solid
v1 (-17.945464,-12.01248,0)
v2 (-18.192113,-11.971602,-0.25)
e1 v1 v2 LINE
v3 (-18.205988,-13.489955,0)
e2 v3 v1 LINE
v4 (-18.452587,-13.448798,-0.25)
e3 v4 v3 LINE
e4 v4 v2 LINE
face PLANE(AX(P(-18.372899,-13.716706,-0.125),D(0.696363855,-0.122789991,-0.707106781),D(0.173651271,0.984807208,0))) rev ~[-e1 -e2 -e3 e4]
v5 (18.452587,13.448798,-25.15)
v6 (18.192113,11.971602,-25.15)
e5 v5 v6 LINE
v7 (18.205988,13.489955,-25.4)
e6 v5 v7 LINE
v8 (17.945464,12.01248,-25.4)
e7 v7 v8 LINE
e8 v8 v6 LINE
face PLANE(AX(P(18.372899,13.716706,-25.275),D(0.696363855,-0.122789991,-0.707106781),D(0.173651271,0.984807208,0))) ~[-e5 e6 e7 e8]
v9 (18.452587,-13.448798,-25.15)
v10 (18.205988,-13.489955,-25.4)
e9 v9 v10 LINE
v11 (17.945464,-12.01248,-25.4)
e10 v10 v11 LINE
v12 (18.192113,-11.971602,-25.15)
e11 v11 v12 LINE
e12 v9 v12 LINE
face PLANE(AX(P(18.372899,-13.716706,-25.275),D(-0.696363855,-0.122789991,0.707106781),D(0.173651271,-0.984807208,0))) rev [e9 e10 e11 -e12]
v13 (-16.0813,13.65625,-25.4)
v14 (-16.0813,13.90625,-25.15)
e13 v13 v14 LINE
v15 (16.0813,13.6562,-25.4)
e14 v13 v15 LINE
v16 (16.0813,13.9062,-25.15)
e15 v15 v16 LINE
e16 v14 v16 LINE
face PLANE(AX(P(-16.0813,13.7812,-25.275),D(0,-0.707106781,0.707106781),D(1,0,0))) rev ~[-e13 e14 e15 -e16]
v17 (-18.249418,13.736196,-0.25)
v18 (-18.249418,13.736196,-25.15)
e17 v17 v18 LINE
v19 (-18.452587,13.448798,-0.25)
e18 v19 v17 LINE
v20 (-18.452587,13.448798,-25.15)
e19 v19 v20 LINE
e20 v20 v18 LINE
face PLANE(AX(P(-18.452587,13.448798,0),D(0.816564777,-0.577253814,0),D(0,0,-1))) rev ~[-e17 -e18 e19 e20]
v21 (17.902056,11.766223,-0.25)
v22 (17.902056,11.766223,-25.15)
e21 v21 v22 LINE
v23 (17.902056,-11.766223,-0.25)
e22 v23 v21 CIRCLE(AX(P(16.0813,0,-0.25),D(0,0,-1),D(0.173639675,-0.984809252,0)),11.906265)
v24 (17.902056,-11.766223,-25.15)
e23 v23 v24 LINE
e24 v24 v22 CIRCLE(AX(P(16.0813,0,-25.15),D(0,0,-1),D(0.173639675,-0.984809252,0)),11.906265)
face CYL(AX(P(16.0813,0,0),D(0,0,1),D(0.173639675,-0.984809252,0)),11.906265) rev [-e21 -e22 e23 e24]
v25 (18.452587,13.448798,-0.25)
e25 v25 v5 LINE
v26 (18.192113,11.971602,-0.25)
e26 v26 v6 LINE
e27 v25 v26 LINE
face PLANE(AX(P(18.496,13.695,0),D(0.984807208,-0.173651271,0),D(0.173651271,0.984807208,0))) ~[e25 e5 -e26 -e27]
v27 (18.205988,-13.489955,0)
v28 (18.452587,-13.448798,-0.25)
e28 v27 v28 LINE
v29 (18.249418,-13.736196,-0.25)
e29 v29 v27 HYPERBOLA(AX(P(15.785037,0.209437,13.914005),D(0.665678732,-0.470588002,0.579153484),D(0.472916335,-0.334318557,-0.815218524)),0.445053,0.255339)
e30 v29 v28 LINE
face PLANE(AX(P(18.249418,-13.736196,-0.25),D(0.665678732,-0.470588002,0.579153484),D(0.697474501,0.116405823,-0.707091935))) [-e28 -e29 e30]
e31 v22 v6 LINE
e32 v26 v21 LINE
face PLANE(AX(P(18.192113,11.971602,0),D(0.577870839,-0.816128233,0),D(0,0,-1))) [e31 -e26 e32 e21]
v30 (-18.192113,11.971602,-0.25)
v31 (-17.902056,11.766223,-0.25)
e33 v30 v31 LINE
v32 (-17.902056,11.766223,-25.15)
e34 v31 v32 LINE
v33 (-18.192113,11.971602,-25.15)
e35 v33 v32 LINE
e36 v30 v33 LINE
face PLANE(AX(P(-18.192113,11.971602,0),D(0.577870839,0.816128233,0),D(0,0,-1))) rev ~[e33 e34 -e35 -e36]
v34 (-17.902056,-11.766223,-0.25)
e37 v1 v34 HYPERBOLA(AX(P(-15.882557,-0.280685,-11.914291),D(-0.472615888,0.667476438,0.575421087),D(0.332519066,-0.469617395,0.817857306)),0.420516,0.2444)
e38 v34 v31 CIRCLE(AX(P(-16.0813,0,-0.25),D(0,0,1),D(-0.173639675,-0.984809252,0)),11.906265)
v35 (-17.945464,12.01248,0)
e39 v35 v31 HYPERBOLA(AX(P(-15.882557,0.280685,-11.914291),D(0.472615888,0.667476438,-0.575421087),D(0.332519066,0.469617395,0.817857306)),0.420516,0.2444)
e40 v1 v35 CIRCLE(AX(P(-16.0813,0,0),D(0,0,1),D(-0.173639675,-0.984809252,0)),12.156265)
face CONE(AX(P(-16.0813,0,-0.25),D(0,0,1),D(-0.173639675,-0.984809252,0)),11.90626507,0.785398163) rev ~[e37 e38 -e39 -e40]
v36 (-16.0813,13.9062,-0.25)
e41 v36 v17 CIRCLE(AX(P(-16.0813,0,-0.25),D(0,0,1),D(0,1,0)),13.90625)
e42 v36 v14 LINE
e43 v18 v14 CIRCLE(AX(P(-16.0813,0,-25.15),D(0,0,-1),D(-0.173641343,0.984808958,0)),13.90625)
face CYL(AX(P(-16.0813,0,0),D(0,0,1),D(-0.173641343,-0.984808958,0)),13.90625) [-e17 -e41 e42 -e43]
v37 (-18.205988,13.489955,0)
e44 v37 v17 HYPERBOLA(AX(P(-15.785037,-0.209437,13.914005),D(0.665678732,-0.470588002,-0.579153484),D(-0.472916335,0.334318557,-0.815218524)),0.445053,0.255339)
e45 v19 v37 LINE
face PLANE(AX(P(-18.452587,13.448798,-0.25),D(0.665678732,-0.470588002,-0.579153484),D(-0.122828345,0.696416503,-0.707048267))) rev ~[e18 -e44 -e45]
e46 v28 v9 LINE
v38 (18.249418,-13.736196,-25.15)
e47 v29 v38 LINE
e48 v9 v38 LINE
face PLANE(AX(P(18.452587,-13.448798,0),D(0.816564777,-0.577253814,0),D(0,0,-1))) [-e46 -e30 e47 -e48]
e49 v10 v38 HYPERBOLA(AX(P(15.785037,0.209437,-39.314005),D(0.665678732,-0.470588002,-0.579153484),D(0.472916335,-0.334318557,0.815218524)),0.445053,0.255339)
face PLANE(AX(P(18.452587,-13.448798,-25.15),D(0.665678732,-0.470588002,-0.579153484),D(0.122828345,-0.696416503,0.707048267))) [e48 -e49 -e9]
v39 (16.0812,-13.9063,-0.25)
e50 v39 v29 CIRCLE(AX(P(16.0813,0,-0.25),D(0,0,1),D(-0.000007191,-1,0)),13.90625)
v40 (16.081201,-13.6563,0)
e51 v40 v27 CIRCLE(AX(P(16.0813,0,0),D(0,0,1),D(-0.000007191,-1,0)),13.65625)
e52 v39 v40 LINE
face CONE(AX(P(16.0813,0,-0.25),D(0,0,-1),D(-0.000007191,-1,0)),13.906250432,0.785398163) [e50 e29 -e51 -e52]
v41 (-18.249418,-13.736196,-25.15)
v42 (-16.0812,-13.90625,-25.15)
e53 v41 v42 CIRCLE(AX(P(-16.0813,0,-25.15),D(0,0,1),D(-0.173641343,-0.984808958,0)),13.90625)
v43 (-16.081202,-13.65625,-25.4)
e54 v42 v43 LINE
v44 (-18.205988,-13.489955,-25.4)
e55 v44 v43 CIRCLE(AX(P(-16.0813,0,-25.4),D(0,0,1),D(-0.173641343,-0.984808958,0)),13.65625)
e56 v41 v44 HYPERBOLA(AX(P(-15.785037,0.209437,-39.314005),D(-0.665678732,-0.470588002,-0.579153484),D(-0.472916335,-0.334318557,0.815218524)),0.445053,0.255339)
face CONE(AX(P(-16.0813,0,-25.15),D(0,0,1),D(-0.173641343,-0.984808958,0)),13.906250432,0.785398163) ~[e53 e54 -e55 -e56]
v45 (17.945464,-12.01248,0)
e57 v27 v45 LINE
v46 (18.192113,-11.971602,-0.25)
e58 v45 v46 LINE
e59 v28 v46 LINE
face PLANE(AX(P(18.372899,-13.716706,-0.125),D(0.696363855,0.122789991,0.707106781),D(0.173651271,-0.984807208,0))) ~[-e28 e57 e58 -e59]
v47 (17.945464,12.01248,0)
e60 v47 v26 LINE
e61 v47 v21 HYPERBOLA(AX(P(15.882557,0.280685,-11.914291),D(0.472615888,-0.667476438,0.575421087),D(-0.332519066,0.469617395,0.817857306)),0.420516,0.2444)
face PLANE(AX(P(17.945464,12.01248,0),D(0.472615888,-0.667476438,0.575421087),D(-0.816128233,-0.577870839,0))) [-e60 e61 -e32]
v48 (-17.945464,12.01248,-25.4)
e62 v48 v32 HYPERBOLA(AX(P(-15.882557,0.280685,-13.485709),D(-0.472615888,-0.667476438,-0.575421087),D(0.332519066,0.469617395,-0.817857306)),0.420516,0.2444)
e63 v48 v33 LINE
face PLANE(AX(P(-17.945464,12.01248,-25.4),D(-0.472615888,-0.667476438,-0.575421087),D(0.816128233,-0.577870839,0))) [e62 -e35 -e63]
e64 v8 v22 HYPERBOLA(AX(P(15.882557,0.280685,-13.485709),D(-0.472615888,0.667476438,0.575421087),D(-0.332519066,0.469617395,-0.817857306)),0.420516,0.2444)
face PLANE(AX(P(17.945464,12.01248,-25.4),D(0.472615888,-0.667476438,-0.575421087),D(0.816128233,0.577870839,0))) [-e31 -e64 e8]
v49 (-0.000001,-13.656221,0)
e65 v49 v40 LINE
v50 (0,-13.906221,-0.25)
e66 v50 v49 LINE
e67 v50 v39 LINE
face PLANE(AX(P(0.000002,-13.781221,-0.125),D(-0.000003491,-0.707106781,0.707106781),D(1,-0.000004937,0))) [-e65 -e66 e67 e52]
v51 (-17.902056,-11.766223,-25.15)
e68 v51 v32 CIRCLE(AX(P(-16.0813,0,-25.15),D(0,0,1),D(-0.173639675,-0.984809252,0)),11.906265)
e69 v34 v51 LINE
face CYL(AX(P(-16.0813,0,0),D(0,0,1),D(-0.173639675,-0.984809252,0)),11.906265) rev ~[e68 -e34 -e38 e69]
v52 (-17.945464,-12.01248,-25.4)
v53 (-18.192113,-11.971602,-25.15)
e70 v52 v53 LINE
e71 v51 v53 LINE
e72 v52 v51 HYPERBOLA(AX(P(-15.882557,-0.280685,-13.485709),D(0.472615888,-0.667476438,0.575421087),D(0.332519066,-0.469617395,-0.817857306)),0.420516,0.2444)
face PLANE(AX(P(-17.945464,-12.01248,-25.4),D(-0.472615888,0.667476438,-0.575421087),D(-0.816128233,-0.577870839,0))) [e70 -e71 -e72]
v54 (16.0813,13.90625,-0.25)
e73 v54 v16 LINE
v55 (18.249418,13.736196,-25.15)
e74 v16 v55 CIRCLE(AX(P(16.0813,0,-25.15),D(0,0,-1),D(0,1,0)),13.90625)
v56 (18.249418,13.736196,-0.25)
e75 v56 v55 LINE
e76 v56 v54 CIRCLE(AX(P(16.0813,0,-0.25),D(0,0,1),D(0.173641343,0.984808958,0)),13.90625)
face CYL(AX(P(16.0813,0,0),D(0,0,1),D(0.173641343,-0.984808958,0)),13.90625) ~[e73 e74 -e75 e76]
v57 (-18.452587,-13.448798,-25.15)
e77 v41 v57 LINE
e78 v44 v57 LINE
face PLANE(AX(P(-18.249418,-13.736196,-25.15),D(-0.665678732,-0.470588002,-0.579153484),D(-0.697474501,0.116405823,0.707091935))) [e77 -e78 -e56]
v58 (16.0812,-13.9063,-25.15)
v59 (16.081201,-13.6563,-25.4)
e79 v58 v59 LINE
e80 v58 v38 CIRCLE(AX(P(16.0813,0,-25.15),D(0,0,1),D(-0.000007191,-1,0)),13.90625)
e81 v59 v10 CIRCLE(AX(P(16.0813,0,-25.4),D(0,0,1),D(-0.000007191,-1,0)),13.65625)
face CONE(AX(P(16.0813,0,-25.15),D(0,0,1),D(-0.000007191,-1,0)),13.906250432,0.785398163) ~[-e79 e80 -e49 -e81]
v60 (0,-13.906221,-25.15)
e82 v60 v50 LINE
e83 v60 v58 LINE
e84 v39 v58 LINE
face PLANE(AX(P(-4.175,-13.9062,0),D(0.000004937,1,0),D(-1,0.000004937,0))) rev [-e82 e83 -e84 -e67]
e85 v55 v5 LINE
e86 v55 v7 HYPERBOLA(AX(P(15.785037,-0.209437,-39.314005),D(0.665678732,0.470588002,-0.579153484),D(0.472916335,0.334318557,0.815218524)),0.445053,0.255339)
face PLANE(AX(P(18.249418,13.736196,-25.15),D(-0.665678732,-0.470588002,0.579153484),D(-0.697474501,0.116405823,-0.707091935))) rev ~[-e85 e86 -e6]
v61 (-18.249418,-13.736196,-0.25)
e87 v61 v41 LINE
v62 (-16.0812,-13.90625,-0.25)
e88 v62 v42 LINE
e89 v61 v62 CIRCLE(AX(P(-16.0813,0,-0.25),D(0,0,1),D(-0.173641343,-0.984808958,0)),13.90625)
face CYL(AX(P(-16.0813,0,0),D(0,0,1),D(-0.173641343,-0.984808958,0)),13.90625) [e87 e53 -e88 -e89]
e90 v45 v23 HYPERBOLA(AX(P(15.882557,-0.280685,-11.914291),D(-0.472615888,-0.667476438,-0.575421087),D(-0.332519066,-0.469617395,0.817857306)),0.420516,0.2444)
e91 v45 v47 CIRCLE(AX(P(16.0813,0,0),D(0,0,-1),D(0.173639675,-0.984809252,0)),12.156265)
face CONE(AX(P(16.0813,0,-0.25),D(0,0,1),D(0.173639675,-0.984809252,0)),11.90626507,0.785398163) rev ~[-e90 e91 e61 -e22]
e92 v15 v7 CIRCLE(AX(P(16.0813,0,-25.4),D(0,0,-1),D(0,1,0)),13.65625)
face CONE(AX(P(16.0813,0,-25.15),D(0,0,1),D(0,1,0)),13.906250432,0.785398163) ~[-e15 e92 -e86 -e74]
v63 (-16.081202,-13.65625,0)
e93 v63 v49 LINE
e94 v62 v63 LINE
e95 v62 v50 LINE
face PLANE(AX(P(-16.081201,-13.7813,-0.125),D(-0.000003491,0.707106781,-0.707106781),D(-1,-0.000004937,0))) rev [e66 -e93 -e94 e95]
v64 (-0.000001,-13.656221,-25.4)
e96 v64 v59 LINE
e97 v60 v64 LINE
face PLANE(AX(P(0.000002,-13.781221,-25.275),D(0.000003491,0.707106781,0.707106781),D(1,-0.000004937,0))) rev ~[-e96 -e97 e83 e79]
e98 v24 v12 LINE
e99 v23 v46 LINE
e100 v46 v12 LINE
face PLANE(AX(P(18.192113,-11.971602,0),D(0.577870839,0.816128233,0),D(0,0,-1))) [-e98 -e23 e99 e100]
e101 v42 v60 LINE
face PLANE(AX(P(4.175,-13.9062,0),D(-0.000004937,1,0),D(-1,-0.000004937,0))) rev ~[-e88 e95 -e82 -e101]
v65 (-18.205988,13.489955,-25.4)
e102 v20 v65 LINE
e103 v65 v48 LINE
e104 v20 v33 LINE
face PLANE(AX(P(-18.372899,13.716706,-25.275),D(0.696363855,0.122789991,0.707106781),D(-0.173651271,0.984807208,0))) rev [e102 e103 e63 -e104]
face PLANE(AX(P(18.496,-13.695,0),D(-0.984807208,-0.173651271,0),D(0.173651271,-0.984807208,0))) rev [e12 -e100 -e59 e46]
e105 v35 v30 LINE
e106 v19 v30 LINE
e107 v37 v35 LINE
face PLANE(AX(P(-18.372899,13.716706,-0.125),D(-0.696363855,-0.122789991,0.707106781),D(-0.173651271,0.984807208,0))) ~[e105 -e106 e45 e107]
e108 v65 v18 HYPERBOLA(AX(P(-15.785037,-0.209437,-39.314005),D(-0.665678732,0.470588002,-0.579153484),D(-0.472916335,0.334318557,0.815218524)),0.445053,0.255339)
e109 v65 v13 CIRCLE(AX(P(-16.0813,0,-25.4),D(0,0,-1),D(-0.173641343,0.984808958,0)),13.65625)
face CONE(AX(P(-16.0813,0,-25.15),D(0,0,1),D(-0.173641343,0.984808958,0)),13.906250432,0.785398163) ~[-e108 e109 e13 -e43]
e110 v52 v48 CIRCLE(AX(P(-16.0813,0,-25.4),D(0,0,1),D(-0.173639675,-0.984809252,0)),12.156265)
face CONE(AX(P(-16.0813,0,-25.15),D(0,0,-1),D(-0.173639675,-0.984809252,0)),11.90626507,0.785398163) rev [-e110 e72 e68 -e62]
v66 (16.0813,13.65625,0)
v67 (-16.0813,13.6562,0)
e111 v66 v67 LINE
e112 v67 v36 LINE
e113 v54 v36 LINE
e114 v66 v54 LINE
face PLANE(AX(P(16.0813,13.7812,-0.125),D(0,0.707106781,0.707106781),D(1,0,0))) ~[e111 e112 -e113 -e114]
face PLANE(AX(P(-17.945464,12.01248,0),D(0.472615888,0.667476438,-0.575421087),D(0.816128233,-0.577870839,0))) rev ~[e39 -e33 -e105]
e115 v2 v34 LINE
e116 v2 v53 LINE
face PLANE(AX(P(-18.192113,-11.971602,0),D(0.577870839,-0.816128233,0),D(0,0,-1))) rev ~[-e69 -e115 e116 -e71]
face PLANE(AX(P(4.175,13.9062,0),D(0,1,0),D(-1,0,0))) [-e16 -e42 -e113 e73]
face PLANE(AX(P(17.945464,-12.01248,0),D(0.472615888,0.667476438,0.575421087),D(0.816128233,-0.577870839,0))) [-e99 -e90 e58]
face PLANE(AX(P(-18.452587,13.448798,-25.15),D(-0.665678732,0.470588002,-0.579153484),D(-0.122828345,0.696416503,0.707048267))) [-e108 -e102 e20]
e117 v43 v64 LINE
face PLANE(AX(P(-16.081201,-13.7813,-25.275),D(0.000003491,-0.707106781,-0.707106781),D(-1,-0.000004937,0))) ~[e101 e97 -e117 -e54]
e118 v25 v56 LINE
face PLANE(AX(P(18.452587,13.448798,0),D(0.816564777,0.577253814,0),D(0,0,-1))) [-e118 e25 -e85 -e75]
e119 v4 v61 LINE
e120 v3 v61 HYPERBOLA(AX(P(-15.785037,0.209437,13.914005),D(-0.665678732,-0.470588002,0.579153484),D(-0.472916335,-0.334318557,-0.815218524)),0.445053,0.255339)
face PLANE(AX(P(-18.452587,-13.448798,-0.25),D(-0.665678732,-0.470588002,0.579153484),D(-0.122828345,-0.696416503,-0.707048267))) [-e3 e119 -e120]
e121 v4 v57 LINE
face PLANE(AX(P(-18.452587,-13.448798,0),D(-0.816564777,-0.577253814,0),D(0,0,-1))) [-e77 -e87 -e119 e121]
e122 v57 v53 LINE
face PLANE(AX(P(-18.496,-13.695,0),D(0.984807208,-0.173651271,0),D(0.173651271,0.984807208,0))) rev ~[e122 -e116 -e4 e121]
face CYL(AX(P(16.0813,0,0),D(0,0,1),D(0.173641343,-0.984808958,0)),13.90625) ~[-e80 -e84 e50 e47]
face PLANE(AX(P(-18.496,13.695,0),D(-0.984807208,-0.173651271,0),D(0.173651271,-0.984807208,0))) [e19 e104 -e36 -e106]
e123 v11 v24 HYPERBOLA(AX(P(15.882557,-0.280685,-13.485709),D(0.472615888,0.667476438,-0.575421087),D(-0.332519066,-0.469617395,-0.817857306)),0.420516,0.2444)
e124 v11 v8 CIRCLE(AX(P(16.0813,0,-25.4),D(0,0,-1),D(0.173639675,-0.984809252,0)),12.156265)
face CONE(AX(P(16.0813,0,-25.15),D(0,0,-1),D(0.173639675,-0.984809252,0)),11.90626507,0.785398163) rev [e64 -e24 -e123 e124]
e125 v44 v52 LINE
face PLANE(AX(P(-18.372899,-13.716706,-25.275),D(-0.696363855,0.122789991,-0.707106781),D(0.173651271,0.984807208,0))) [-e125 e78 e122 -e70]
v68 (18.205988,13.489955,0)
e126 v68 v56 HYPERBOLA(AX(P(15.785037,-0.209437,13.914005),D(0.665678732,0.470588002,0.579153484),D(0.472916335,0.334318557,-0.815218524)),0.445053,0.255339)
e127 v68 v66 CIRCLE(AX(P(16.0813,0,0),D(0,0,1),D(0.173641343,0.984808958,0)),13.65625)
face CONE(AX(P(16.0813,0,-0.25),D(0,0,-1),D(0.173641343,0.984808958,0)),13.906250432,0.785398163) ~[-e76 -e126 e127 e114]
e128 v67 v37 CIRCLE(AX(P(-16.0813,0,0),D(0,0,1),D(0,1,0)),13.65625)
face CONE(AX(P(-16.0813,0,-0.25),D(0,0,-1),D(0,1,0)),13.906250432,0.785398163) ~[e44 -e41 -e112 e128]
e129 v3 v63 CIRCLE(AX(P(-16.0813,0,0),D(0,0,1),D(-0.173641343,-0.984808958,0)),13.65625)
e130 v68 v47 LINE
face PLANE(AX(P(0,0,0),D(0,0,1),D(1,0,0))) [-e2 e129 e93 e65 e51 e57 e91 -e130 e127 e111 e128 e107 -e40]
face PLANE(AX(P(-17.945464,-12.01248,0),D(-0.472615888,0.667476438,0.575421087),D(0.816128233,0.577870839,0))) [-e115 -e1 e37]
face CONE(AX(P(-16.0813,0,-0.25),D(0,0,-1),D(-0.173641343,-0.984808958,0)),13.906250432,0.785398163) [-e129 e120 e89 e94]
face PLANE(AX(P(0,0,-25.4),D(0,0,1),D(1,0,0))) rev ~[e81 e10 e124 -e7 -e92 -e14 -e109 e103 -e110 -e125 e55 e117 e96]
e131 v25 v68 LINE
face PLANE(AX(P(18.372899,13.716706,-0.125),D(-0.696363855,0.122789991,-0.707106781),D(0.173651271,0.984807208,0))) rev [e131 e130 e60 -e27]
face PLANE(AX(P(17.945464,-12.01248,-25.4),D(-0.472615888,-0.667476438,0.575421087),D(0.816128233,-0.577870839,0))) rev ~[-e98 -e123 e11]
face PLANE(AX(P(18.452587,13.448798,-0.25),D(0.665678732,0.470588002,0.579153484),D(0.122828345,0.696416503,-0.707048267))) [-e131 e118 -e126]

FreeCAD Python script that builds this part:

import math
import FreeCAD as App
import Part
import Sketcher

V = App.Vector
Q = App.Units.Quantity

doc = App.newDocument("Part")
body = doc.addObject("PartDesign::Body", "Body")

# Sketch on XY plane
sketch1 = doc.addObject("Sketcher::SketchObject", "Sketch")
body.addObject(sketch1)
sketch1.AttachmentSupport = (doc.XY_Plane, [""])
sketch1.MapMode = "FlatFace"
sketch1.addGeometry([
    Part.LineSegment(V(-18.1, -11.7, 0), V(-18.5, -13.7, 0)),  # 0
    Part.ArcOfCircle(Part.Circle(V(-16.1, 0, 0), V(0, 0, 1), 13.9), math.radians(-100), math.radians(-90)),  # 1
    Part.LineSegment(V(-16.1, -13.9, 0), V(4.2, -13.9, 0)),  # 2
    Part.LineSegment(V(4.2, -13.9, 0), V(4.2, 13.9, 0)),  # 3
    Part.LineSegment(V(4.2, 13.9, 0), V(-16.1, 13.9, 0)),  # 4
    Part.ArcOfCircle(Part.Circle(V(-16.1, 0, 0), V(0, 0, 1), 13.9), math.radians(90), math.radians(100)),  # 5
    Part.LineSegment(V(-18.5, 13.7, 0), V(-18.1, 11.7, 0)),  # 6
    Part.ArcOfCircle(Part.Circle(V(-16.1, 0, 0), V(0, 0, 1), 11.9), math.radians(-100), math.radians(100)),  # 7
], False)
sketch1.addConstraint([
    Sketcher.Constraint("Coincident", 0, 2, 1, 1),
    Sketcher.Constraint("Tangent", 1, 2, 2, 1),
    Sketcher.Constraint("Coincident", 2, 2, 3, 1),
    Sketcher.Constraint("Coincident", 3, 2, 4, 1),
    Sketcher.Constraint("Tangent", 4, 2, 5, 1),
    Sketcher.Constraint("Coincident", 5, 2, 6, 1),
    Sketcher.Constraint("Coincident", 6, 2, 7, 2),
    Sketcher.Constraint("Coincident", 7, 1, 0, 1),
    Sketcher.Constraint("Horizontal", 2),
    Sketcher.Constraint("Vertical", 3),
    Sketcher.Constraint("Horizontal", 4),
    Sketcher.Constraint("Coincident", 5, 3, 1, 3),
    Sketcher.Constraint("Coincident", 7, 3, 1, 3),
    Sketcher.Constraint("Equal", 1, 5),
    Sketcher.Constraint("Symmetric", 0, 2, 5, 2, -1),
    Sketcher.Constraint("Vertical", 6, 2, 7, 1),
    Sketcher.Constraint("Radius", 7, Q("0.468752 in")),
    Sketcher.Constraint("Angle", 0, Q("-100.0002 deg")),
    Sketcher.Constraint("Radius", 1, Q("0.5475 in")),
    Sketcher.Constraint("DistanceX", 2, 1, 2, 2, Q("0.7975 in")),
    Sketcher.Constraint("DistanceX", 0, 2, -1, 1, Q("0.7282 in")),
    Sketcher.Constraint("DistanceX", 6, 2, 4, 2, Q("0.0814 in")),
])
pad1 = doc.addObject("PartDesign::Pad", "Pad")
body.addObject(pad1)
pad1.Profile = sketch1
pad1.Length = Q("1 in")
pad1.Reversed = True
doc.recompute()

mirrored = doc.addObject("PartDesign::Mirrored", "Mirrored")
body.addObject(mirrored)
mirrored.Originals = [pad1]
mirrored.MirrorPlane = (doc.YZ_Plane, [""])
body.Tip = mirrored
doc.recompute()

chamfer = doc.addObject("PartDesign::Chamfer", "Chamfer")
body.addObject(chamfer)
chamfer.Base = (mirrored, ["Edge1"])
chamfer.UseAllEdges = True
chamfer.Size = 0.25

doc.recompute()
